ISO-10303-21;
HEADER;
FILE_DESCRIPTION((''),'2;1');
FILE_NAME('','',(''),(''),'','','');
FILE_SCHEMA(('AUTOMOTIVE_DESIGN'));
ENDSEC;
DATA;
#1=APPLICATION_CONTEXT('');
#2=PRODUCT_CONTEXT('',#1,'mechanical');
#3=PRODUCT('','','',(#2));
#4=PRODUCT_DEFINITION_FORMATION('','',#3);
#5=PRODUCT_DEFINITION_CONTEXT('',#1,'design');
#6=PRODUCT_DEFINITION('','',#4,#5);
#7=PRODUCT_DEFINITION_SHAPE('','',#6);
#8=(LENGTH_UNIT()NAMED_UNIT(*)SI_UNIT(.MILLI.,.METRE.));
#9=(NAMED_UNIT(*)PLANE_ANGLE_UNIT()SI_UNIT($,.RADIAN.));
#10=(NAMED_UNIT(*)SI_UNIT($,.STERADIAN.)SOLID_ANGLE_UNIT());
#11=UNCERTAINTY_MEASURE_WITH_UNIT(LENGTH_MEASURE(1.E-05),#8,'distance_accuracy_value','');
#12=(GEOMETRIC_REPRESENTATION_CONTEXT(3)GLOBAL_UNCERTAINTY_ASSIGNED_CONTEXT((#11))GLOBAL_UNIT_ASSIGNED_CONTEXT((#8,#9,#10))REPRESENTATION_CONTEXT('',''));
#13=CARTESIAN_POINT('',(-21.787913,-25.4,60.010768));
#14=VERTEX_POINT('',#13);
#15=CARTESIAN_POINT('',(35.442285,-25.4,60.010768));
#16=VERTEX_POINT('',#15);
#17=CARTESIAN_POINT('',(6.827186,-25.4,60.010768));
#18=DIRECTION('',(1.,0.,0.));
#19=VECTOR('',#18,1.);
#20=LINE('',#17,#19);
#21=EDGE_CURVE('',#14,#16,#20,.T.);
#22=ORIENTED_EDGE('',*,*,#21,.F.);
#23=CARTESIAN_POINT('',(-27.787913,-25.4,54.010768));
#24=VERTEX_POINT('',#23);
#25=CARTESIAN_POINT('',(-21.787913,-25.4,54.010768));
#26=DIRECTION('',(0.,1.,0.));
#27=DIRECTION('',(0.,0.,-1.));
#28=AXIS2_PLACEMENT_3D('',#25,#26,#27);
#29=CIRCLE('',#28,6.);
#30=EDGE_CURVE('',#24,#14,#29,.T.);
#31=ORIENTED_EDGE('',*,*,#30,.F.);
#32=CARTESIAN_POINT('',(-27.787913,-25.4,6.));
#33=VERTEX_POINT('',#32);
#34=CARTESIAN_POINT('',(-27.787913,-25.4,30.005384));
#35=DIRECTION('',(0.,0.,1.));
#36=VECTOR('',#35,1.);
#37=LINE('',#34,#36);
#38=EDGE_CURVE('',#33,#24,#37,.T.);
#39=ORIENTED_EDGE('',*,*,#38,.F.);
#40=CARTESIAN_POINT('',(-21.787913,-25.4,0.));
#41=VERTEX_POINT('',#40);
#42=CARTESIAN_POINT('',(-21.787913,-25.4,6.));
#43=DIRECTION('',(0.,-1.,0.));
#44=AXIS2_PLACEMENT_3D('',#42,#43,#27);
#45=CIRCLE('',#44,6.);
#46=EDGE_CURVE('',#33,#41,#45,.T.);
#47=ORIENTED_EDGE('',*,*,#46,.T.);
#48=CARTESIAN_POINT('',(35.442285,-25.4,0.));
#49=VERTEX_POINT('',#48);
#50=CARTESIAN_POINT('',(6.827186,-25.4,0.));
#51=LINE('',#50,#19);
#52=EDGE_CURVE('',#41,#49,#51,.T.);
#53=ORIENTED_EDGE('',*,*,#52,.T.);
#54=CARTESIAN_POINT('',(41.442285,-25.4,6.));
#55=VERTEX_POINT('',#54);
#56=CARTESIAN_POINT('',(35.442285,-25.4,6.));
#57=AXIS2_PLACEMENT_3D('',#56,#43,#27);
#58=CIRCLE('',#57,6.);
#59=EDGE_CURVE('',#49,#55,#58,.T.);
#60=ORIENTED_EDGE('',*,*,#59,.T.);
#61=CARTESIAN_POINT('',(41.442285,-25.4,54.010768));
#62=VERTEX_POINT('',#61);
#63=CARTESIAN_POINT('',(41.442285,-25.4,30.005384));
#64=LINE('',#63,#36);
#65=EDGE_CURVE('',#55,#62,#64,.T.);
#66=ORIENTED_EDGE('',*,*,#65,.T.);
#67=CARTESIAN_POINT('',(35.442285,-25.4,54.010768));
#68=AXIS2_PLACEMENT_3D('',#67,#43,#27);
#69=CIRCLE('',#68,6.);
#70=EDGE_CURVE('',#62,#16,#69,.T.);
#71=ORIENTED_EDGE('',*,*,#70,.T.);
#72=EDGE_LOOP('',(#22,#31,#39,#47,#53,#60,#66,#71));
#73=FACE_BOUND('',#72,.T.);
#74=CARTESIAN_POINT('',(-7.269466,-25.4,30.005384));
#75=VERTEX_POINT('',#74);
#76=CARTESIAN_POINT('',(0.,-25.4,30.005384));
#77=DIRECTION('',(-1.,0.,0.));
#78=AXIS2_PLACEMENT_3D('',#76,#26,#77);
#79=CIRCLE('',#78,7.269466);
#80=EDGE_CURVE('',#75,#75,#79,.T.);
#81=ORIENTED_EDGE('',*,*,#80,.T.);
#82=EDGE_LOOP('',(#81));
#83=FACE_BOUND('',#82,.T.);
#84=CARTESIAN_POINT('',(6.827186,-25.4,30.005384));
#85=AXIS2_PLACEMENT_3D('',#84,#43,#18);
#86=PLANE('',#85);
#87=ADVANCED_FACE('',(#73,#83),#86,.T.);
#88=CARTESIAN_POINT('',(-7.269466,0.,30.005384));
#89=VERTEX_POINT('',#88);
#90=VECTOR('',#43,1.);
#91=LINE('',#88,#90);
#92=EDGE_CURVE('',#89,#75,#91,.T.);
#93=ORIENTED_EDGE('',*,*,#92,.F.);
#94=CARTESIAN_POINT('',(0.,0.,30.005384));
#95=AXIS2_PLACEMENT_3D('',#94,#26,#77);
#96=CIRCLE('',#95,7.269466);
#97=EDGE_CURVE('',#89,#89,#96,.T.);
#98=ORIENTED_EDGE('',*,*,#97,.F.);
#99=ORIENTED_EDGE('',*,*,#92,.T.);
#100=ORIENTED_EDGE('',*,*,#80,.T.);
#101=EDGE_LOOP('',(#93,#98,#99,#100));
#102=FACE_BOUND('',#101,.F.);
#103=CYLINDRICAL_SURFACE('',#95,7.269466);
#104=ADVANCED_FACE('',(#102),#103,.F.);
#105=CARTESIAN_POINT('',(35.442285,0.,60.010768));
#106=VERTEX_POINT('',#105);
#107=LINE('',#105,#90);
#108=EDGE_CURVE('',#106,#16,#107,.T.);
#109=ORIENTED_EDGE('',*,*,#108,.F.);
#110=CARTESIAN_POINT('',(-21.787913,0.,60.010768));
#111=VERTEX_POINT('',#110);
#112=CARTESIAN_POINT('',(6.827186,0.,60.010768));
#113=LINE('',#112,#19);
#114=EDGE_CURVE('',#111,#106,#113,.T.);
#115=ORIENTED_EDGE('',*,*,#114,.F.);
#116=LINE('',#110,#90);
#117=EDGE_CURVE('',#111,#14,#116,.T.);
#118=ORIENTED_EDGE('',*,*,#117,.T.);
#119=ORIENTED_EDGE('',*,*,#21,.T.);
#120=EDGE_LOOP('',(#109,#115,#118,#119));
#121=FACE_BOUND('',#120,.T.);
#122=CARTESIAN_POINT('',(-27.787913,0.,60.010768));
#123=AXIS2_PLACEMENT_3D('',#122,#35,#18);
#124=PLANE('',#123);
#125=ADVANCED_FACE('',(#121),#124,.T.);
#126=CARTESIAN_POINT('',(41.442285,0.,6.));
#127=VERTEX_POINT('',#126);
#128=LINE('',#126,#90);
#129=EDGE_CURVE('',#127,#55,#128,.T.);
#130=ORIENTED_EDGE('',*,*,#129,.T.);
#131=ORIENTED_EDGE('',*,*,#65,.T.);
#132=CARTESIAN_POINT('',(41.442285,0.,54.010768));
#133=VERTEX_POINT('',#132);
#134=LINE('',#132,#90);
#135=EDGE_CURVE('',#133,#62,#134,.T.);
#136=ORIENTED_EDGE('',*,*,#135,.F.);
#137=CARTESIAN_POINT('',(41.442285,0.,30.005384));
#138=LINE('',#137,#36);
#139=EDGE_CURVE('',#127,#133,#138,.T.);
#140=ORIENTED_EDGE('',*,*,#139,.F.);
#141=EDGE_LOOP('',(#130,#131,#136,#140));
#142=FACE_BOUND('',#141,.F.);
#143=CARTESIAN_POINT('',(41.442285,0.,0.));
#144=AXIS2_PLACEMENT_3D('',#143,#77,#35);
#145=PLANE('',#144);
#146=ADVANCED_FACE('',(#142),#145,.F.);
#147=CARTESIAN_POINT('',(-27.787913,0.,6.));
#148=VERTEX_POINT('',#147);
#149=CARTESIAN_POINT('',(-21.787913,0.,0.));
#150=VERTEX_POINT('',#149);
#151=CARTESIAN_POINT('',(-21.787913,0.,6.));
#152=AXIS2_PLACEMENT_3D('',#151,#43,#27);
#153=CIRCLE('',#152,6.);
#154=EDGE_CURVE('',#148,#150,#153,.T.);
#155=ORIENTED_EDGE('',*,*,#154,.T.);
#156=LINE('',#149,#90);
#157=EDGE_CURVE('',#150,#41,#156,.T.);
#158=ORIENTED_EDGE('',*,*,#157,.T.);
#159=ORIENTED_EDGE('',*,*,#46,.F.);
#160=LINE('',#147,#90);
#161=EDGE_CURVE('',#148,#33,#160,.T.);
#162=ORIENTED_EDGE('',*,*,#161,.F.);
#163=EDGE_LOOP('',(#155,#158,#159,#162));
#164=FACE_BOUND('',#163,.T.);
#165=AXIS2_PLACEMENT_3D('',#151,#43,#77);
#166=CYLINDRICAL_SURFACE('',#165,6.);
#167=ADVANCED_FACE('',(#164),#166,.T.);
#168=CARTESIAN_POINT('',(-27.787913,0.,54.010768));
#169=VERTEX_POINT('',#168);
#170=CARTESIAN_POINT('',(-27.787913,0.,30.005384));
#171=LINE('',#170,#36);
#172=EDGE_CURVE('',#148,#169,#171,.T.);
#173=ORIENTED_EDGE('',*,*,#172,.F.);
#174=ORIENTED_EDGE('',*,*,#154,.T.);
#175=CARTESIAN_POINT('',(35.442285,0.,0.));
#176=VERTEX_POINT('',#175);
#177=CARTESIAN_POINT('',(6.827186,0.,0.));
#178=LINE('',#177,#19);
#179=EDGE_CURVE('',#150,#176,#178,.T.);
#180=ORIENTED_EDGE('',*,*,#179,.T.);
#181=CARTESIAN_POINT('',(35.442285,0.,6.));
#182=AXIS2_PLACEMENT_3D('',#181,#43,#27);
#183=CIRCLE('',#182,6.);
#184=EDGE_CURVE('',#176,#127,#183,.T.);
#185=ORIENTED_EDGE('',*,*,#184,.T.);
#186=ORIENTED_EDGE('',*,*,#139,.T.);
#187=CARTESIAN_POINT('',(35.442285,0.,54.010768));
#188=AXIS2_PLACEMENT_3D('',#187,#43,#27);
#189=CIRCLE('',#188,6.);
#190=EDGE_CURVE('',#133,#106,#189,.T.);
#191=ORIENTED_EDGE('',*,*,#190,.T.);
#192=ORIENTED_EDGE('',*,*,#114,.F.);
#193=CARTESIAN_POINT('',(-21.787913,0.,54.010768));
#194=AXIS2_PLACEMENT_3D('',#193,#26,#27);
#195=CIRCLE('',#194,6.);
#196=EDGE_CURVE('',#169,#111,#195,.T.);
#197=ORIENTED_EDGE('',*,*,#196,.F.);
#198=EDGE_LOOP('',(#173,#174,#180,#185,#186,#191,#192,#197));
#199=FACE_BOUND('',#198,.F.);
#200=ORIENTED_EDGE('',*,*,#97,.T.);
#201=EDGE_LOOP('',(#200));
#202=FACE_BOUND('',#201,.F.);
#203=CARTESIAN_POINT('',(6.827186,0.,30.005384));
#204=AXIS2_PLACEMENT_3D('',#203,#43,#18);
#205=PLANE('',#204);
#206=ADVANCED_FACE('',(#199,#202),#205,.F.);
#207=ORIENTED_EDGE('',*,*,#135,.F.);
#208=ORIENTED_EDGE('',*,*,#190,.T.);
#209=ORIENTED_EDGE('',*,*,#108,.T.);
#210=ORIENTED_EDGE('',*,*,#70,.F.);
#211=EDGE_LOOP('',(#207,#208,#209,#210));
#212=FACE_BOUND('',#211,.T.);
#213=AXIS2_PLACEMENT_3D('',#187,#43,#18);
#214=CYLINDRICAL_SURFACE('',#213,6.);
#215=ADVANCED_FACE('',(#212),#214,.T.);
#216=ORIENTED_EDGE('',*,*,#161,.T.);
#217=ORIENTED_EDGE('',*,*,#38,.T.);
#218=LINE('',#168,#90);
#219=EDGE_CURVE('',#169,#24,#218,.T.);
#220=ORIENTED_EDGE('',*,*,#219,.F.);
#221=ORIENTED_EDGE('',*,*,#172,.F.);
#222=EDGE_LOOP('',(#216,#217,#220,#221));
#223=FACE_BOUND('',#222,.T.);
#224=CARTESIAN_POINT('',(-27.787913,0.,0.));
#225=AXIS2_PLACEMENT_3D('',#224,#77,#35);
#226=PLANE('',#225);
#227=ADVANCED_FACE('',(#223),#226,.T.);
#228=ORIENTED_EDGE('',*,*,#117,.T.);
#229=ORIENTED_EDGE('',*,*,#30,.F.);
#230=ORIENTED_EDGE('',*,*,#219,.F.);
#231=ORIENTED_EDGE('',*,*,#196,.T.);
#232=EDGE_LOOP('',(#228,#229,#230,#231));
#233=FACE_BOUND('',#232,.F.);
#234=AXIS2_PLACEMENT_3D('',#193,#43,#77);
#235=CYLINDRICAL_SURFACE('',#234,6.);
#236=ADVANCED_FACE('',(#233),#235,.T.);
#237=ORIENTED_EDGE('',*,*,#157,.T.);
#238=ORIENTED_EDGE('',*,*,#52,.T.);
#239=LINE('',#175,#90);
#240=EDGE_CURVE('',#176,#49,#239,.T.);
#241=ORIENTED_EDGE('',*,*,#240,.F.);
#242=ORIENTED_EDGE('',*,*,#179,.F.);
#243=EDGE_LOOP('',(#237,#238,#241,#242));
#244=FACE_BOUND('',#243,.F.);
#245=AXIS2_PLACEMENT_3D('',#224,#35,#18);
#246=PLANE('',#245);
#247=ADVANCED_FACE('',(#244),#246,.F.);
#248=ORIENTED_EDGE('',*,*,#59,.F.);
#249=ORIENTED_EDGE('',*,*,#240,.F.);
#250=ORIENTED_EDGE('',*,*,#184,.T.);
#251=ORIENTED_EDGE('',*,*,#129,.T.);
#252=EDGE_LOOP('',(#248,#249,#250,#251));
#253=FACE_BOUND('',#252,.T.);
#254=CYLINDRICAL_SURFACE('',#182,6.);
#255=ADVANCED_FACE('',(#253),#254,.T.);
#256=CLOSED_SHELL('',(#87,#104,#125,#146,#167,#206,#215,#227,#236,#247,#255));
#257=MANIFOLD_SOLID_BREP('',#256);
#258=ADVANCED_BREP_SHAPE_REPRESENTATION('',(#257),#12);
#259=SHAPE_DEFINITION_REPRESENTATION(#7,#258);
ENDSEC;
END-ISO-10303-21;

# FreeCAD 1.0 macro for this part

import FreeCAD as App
import Part
import Sketcher


def edges_at(feature, points):
    """Names of the edges that pass closest to the given points."""
    edges = feature.Shape.Edges
    near = lambda p: min(range(len(edges)), key=lambda i: edges[i].distToShape(Part.Vertex(*p))[0])
    return sorted({f"Edge{near(p) + 1}" for p in points})


def add_polygon(sketch, points):
    """Adds a closed chain of lines whose ends are joined by coincident constraints."""
    first, n = sketch.GeometryCount, len(points)
    for a, b in zip(points, points[1:] + points[:1]):
        sketch.addGeometry(Part.LineSegment(App.Vector(*a, 0), App.Vector(*b, 0)), False)
    for i in range(n):
        sketch.addConstraint(Sketcher.Constraint("Coincident", first + i, 2, first + (i + 1) % n, 1))

doc = App.newDocument("Part")
body = doc.addObject("PartDesign::Body", "Body")

sketch1 = body.newObject("Sketcher::SketchObject", "Sketch")
sketch1.AttachmentSupport = (doc.getObject("XZ_Plane"), [""])
sketch1.MapMode = "FlatFace"
add_polygon(sketch1, [(-27.787913, 60.010768), (-27.787913, 0), (41.442285, 0), (41.442285, 60.010768)])
sketch1.addConstraint([
    Sketcher.Constraint("Vertical", 0),
    Sketcher.Constraint("Horizontal", 1),
    Sketcher.Constraint("Vertical", 2),
    Sketcher.Constraint("Horizontal", 3),
    Sketcher.Constraint("PointOnObject", 0, 2, -1),
    Sketcher.Constraint("DistanceX", 1, 1, 1, 2, 69.230199),
    Sketcher.Constraint("DistanceY", 0, 2, 0, 1, 60.010768),
    Sketcher.Constraint("DistanceX", 0, 2, -1, 1, 27.787913),
])
pad1 = body.newObject("PartDesign::Pad", "Pad")
pad1.Profile = sketch1
pad1.Length = 25.4
doc.recompute()

fillet = body.newObject("PartDesign::Fillet", "Fillet")
fillet.Base = (pad1, edges_at(pad1, [
    (41.442, -12.7, 60.011),
    (41.442, -12.7, 0),
    (-27.788, -12.7, 60.011),
    (-27.788, -12.7, 0),
]))
fillet.Radius = 6

sketch2 = body.newObject("Sketcher::SketchObject", "Sketch001")
sketch2.AttachmentSupport = (doc.getObject("XZ_Plane"), [""])
sketch2.MapMode = "FlatFace"
sketch2.addGeometry(Part.Circle(App.Vector(0, 30.005384, 0), App.Vector(0, 0, 1), 7.269466), False)
sketch2.addConstraint([
    Sketcher.Constraint("PointOnObject", 0, 3, -2),
    Sketcher.Constraint("Diameter", 0, 14.538932),
    Sketcher.Constraint("DistanceY", -1, 1, 0, 3, 30.005384),
])
pocket1 = body.newObject("PartDesign::Pocket", "Pocket")
pocket1.Profile = sketch2
pocket1.Type = "ThroughAll"
pocket1.Reversed = True

doc.recompute()
